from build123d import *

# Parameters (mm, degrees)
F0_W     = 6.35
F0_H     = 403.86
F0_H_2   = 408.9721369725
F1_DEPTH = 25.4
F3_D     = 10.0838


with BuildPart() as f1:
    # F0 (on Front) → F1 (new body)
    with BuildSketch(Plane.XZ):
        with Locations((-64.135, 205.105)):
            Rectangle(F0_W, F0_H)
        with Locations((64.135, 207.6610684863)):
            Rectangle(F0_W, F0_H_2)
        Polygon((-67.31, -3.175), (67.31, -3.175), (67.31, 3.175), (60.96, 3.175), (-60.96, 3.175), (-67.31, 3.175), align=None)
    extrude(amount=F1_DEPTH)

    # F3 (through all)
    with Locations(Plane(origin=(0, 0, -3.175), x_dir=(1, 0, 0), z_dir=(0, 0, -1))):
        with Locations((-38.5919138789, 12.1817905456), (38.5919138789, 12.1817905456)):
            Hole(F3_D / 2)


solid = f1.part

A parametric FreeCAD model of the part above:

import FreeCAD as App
import Part
import Sketcher

V = App.Vector
Q = App.Units.Quantity


def add_polygon(sketch, points):
    """Adds a closed chain of lines whose ends are joined by coincident constraints."""
    first, n = sketch.GeometryCount, len(points)
    for a, b in zip(points, points[1:] + points[:1]):
        sketch.addGeometry(Part.LineSegment(App.Vector(*a, 0), App.Vector(*b, 0)), False)
    for i in range(n):
        sketch.addConstraint(Sketcher.Constraint("Coincident", first + i, 2, first + (i + 1) % n, 1))

doc = App.newDocument("Part")
body = doc.addObject("PartDesign::Body", "Body")

# Sketch on XZ plane
sketch1 = doc.addObject("Sketcher::SketchObject", "Sketch")
body.addObject(sketch1)
sketch1.AttachmentSupport = (doc.XZ_Plane, [""])
sketch1.MapMode = "FlatFace"
add_polygon(sketch1, [(-67, 407), (-67, -3), (67, -3), (67, 412), (61, 412), (61, 3), (-61, 3), (-61, 407)])  # lines 0-7
sketch1.addConstraint([
    Sketcher.Constraint("Vertical", 0),
    Sketcher.Constraint("Horizontal", 1),
    Sketcher.Constraint("Vertical", 2),
    Sketcher.Constraint("Horizontal", 3),
    Sketcher.Constraint("Vertical", 4),
    Sketcher.Constraint("Horizontal", 5),
    Sketcher.Constraint("Vertical", 6),
    Sketcher.Constraint("Horizontal", 7),
    Sketcher.Constraint("Equal", 3, 7),
    Sketcher.Constraint("DistanceX", 1, 1, 1, 2, Q("5.3 in")),
    Sketcher.Constraint("DistanceX", 5, 2, 5, 1, Q("4.8 in")),
    Sketcher.Constraint("DistanceY", 6, 1, 6, 2, Q("15.9 in")),
    Sketcher.Constraint("DistanceY", 0, 2, 0, 1, Q("16.15 in")),
    Sketcher.Constraint("DistanceX", -1, 1, 3, 2, Q("2.4 in")),
    Sketcher.Constraint("DistanceY", 0, 2, -1, 1, Q("0.125 in")),
    Sketcher.Constraint("DistanceY", 2, 1, 2, 2, Q("415.322137 mm")),
])
pad1 = doc.addObject("PartDesign::Pad", "Pad")
body.addObject(pad1)
pad1.Profile = sketch1
pad1.Length = Q("1 in")

# Sketch on XY plane
sketch2 = doc.addObject("Sketcher::SketchObject", "Sketch001")
body.addObject(sketch2)
sketch2.AttachmentSupport = (doc.XY_Plane, [""])
sketch2.MapMode = "FlatFace"
sketch2.AttachmentOffset = App.Placement(V(0, 0, -0.125 * 25.4), App.Rotation())
sketch2.addGeometry([
    Part.Circle(V(-39, -12, 0), V(0, 0, 1), 5),
    Part.Circle(V(39, -12, 0), V(0, 0, 1), 5),
], False)
sketch2.addConstraint([
    Sketcher.Constraint("Equal", 0, 1),
    Sketcher.Constraint("Symmetric", 0, 3, 1, 3, -2),
    Sketcher.Constraint("Diameter", 0, Q("0.397 in")),
    Sketcher.Constraint("DistanceY", 0, 3, -1, 1, Q("12.181791 mm")),
    Sketcher.Constraint("DistanceX", 0, 3, -1, 1, Q("38.591914 mm")),
])
doc.recompute()
hole = doc.addObject("PartDesign::Hole", "Hole")
body.addObject(hole)
hole.Profile = sketch2
hole.ThreadType = "None"
hole.Diameter = Q("0.397 in")
hole.DepthType = "ThroughAll"
hole.Reversed = True

doc.recompute()
